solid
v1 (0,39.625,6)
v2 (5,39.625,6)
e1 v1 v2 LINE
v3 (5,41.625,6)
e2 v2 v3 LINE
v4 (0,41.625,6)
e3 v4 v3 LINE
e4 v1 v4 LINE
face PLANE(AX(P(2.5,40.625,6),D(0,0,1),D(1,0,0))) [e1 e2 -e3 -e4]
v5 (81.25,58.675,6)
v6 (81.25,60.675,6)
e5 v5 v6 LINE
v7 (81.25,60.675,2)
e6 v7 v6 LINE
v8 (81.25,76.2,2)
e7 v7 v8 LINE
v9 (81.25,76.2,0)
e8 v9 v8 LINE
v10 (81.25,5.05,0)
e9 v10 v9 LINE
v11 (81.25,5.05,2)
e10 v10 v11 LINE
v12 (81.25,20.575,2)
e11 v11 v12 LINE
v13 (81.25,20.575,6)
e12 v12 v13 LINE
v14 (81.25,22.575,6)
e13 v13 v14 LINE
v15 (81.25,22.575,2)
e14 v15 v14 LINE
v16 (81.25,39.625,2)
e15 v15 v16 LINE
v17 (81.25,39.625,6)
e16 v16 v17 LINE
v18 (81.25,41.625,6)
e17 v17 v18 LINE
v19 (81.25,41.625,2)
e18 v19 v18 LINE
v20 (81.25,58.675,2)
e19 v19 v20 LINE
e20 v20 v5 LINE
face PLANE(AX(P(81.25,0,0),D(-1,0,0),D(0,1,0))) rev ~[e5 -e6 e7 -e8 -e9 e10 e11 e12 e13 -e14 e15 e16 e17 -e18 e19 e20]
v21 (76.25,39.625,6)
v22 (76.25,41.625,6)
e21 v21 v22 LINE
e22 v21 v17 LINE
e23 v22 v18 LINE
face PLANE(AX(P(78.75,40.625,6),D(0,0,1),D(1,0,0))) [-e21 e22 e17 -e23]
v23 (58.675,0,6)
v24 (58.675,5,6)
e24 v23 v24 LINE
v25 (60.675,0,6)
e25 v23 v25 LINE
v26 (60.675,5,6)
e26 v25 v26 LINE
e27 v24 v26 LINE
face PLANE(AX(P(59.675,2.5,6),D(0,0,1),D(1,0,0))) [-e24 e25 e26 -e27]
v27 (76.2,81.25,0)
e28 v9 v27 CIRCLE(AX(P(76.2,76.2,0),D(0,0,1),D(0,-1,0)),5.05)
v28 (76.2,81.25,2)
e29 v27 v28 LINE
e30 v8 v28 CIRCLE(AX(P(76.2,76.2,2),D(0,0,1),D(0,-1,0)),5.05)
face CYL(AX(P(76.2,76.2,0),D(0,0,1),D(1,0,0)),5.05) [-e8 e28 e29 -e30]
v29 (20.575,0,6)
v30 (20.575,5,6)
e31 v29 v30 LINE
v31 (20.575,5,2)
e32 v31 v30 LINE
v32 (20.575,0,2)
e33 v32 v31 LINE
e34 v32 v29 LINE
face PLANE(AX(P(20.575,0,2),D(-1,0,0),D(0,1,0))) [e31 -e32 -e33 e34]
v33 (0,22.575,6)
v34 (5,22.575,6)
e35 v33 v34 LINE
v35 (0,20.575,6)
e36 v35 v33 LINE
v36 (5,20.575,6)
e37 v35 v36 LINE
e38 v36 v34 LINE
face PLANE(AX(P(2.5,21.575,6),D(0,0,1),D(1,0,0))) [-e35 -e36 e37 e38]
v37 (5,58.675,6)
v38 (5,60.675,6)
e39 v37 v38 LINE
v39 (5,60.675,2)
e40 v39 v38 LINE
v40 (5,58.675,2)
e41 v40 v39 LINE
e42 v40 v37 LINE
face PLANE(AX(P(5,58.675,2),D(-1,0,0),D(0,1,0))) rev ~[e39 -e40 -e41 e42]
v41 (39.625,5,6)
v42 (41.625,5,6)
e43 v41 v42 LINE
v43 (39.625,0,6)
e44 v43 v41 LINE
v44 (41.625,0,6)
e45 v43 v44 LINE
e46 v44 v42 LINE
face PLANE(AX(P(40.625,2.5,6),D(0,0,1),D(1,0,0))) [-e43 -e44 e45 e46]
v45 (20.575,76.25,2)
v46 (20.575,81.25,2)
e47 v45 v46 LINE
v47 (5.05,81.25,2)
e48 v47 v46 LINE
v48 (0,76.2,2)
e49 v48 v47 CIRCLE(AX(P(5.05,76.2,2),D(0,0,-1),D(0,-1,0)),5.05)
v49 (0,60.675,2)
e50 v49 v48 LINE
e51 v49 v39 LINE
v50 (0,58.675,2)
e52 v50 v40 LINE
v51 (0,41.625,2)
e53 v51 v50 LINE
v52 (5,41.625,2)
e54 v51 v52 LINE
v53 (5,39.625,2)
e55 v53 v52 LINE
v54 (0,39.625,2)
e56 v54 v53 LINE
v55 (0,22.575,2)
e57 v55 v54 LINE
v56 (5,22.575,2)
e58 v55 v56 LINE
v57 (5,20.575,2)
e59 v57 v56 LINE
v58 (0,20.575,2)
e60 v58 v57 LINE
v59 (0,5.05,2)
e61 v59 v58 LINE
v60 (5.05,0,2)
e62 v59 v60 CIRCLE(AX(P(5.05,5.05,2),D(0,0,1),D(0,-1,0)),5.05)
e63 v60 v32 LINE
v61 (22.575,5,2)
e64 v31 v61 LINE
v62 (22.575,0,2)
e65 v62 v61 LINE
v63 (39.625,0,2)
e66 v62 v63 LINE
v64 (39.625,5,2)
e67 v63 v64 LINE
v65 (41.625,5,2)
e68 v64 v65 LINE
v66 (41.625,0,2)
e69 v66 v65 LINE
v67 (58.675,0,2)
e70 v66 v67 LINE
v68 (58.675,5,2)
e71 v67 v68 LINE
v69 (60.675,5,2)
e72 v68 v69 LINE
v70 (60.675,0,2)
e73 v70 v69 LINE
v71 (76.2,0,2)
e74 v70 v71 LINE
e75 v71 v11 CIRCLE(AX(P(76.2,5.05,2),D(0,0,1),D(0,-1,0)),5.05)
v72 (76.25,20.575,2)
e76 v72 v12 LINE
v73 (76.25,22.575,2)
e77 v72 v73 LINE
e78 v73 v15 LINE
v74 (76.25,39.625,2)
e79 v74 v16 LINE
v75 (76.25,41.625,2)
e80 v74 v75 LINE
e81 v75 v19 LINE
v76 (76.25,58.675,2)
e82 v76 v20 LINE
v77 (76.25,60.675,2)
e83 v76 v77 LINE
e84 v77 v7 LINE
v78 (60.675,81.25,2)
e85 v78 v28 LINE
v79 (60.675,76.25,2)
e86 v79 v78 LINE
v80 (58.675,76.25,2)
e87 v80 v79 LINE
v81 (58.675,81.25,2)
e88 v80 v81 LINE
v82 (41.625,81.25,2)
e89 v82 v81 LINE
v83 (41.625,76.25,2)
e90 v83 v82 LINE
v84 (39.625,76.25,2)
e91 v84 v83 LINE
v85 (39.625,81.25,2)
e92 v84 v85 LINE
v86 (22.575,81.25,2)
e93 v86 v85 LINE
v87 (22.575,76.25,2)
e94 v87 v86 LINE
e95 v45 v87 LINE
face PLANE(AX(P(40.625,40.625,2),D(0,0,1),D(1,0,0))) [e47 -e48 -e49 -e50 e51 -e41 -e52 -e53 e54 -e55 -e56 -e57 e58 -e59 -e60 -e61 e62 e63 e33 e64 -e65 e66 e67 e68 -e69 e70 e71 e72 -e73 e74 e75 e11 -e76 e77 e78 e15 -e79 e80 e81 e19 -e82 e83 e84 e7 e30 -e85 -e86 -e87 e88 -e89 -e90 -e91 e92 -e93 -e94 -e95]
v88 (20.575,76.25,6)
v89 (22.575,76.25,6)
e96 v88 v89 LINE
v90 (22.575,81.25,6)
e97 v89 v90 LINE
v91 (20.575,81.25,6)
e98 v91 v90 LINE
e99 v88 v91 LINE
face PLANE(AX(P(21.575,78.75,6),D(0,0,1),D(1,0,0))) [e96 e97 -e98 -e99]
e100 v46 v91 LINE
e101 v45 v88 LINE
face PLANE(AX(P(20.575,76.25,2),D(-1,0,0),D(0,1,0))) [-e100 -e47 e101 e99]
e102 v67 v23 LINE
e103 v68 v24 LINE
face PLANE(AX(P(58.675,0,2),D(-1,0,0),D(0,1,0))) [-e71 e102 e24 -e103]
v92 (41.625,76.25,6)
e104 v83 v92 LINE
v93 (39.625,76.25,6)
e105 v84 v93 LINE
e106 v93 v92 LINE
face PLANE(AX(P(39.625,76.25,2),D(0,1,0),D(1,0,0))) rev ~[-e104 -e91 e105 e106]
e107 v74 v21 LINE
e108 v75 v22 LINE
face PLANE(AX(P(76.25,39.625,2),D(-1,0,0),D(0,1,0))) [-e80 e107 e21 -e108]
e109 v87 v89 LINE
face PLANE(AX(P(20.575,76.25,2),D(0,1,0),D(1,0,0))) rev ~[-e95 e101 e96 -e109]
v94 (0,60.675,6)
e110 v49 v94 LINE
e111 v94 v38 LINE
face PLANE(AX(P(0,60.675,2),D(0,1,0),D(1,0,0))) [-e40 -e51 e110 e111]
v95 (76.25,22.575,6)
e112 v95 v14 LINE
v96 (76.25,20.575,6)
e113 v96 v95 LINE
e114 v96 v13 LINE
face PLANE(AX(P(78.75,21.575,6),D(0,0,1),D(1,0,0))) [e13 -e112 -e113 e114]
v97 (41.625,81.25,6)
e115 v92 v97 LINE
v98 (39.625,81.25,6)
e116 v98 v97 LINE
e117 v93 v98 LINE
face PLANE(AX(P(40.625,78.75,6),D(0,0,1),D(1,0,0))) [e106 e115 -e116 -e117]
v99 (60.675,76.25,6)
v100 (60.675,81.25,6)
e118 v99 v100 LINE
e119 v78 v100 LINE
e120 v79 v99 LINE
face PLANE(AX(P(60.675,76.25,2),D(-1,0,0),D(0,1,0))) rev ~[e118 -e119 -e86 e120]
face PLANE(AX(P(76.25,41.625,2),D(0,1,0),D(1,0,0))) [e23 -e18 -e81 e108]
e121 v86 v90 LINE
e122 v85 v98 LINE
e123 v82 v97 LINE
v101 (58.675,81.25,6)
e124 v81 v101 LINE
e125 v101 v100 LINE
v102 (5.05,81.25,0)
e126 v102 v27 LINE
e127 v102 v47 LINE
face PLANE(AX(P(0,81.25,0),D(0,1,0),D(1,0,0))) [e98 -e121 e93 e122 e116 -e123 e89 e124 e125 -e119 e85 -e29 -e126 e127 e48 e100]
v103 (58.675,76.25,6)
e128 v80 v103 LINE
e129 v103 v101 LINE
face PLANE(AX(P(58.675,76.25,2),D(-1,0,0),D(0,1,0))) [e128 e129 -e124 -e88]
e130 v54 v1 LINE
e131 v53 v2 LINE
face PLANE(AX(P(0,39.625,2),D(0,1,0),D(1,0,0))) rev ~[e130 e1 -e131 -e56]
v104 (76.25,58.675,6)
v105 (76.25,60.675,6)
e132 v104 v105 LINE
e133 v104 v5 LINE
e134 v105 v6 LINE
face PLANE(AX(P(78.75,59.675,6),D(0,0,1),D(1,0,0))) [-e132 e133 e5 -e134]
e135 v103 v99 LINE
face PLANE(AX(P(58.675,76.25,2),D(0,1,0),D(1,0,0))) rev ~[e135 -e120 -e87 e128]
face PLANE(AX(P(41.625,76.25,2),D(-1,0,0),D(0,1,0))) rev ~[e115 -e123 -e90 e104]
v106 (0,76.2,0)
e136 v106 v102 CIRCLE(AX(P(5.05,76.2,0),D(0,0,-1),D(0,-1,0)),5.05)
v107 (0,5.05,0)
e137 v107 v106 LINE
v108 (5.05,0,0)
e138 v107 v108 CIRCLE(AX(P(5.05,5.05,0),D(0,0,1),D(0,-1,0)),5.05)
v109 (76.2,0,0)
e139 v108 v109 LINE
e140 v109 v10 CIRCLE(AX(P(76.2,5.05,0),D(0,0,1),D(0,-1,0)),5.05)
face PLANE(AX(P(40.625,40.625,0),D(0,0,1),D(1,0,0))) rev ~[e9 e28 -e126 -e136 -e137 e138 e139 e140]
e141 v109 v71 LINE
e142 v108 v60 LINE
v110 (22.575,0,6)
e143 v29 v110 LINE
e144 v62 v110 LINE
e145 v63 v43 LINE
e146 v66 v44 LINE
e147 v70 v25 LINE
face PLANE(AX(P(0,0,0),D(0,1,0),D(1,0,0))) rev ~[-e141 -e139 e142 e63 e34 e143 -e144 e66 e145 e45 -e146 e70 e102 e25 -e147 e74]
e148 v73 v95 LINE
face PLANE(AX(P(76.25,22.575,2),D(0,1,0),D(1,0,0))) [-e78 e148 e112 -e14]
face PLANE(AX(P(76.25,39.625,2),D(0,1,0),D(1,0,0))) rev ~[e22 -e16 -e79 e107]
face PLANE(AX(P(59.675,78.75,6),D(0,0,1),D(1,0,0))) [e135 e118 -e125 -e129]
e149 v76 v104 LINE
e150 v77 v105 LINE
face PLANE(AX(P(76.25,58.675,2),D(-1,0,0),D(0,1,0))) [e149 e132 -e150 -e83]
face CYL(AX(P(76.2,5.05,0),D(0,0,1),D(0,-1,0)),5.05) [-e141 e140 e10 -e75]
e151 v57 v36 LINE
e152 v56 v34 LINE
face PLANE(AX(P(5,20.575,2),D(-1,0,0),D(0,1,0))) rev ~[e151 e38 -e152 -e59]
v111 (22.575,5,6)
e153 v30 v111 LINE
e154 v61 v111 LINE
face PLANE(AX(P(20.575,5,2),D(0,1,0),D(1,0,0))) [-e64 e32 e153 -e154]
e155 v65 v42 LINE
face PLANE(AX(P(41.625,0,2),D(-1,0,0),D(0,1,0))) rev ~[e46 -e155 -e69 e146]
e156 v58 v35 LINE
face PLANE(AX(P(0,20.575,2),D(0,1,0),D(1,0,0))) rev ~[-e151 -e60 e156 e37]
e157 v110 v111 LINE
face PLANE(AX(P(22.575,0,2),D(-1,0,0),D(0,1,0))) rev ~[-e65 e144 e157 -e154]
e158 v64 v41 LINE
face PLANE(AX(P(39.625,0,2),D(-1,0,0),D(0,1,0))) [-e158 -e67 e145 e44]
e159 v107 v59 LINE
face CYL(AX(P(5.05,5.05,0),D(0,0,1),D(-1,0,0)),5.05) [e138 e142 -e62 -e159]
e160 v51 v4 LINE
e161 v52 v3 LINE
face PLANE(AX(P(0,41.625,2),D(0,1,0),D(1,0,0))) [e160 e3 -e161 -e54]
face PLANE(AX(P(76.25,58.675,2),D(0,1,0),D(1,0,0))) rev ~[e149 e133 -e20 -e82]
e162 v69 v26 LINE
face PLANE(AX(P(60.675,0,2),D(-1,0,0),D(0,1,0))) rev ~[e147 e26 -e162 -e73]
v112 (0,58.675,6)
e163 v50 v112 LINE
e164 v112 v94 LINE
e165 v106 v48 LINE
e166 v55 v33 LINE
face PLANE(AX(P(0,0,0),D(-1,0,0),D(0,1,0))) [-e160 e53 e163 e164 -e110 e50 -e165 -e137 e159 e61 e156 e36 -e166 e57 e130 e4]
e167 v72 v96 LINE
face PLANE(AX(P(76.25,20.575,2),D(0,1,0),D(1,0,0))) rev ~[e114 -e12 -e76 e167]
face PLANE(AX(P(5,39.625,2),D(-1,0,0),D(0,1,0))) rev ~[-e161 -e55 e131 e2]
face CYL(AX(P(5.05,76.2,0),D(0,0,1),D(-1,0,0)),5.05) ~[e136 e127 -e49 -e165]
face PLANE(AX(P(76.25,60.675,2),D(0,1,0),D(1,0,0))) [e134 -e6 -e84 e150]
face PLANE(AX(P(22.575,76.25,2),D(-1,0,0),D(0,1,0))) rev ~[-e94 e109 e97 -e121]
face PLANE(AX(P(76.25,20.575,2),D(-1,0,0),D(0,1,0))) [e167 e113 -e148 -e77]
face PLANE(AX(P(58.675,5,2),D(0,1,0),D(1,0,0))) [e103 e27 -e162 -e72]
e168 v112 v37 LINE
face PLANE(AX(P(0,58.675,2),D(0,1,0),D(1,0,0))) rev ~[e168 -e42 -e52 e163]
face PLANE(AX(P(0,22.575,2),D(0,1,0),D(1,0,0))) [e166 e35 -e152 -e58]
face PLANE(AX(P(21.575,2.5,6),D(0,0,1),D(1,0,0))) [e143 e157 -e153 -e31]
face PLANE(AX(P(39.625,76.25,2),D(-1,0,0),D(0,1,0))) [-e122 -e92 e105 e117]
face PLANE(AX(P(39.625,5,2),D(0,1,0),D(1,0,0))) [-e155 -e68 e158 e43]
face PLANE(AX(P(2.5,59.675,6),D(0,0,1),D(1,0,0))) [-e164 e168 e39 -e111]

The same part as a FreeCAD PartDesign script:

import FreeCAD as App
import Part
import Sketcher
from FreeCAD import Vector


def edges_at(feature, points):
    """Names of the edges that pass closest to the given points."""
    edges = feature.Shape.Edges
    near = lambda p: min(range(len(edges)), key=lambda i: edges[i].distToShape(Part.Vertex(*p))[0])
    return sorted({f"Edge{near(p) + 1}" for p in points})

doc = App.newDocument("Part")
body = doc.addObject("PartDesign::Body", "Body")

# Sketch on XY plane
sketch1 = doc.addObject("Sketcher::SketchObject", "Sketch")
body.addObject(sketch1)
sketch1.AttachmentSupport = (doc.XY_Plane, [""])
sketch1.MapMode = "FlatFace"
sketch1.addGeometry([
    Part.LineSegment(Vector(0, 81, 0), Vector(0, 0, 0)),
    Part.LineSegment(Vector(0, 0, 0), Vector(81, 0, 0)),
    Part.LineSegment(Vector(81, 0, 0), Vector(81, 81, 0)),
    Part.LineSegment(Vector(81, 81, 0), Vector(0, 81, 0)),
], False)
sketch1.addConstraint([
    Sketcher.Constraint("Coincident", 0, 2, 1, 1),
    Sketcher.Constraint("Coincident", 1, 2, 2, 1),
    Sketcher.Constraint("Coincident", 2, 2, 3, 1),
    Sketcher.Constraint("Coincident", 3, 2, 0, 1),
    Sketcher.Constraint("Vertical", 0),
    Sketcher.Constraint("Horizontal", 1),
    Sketcher.Constraint("Vertical", 2),
    Sketcher.Constraint("Horizontal", 3),
    Sketcher.Constraint("Coincident", 0, 2, -1, 1),
    Sketcher.Constraint("Equal", 3, 0),
    Sketcher.Constraint("DistanceX", 1, 1, 1, 2, 81.25),
])
pad1 = doc.addObject("PartDesign::Pad", "Pad")
body.addObject(pad1)
pad1.Profile = sketch1
pad1.Length = 2
doc.recompute()

fillet = doc.addObject("PartDesign::Fillet", "Fillet")
body.addObject(fillet)
fillet.Base = (pad1, edges_at(pad1, [
    (81.25, 0, 1),
    (0, 0, 1),
    (0, 81.25, 1),
    (81.25, 81.25, 1),
]))
fillet.Radius = 5.05

# Sketch on XY plane
sketch2 = doc.addObject("Sketcher::SketchObject", "Sketch001")
body.addObject(sketch2)
sketch2.AttachmentSupport = (doc.XY_Plane, [""])
sketch2.MapMode = "FlatFace"
sketch2.AttachmentOffset = App.Placement(Vector(0, 0, 2), App.Rotation())
sketch2.addGeometry([
    Part.LineSegment(Vector(20.6, 81.2, 0), Vector(20.6, 76.2, 0)),  # 0
    Part.LineSegment(Vector(20.6, 76.2, 0), Vector(22.6, 76.2, 0)),  # 1
    Part.LineSegment(Vector(22.6, 76.2, 0), Vector(22.6, 81.2, 0)),  # 2
    Part.LineSegment(Vector(22.6, 81.2, 0), Vector(20.6, 81.2, 0)),  # 3
    Part.LineSegment(Vector(39.6, 81.2, 0), Vector(39.6, 76.2, 0)),  # 4
    Part.LineSegment(Vector(39.6, 76.2, 0), Vector(41.6, 76.2, 0)),  # 5
    Part.LineSegment(Vector(41.6, 76.2, 0), Vector(41.6, 81.2, 0)),  # 6
    Part.LineSegment(Vector(41.6, 81.2, 0), Vector(39.6, 81.2, 0)),  # 7
    Part.LineSegment(Vector(58.7, 81.2, 0), Vector(58.7, 76.2, 0)),  # 8
    Part.LineSegment(Vector(58.7, 76.2, 0), Vector(60.7, 76.2, 0)),  # 9
    Part.LineSegment(Vector(60.7, 76.2, 0), Vector(60.7, 81.2, 0)),  # 10
    Part.LineSegment(Vector(60.7, 81.2, 0), Vector(58.7, 81.2, 0)),  # 11
    Part.LineSegment(Vector(39.6, 5, 0), Vector(39.6, 0, 0)),  # 12
    Part.LineSegment(Vector(39.6, 0, 0), Vector(41.6, 0, 0)),  # 13
    Part.LineSegment(Vector(41.6, 0, 0), Vector(41.6, 5, 0)),  # 14
    Part.LineSegment(Vector(41.6, 5, 0), Vector(39.6, 5, 0)),  # 15
    Part.LineSegment(Vector(58.7, 5, 0), Vector(58.7, 0, 0)),  # 16
    Part.LineSegment(Vector(58.7, 0, 0), Vector(60.7, 0, 0)),  # 17
    Part.LineSegment(Vector(60.7, 0, 0), Vector(60.7, 5, 0)),  # 18
    Part.LineSegment(Vector(60.7, 5, 0), Vector(58.7, 5, 0)),  # 19
    Part.LineSegment(Vector(20.6, 5, 0), Vector(20.6, 0, 0)),  # 20
    Part.LineSegment(Vector(20.6, 0, 0), Vector(22.6, 0, 0)),  # 21
    Part.LineSegment(Vector(22.6, 0, 0), Vector(22.6, 5, 0)),  # 22
    Part.LineSegment(Vector(22.6, 5, 0), Vector(20.6, 5, 0)),  # 23
    Part.LineSegment(Vector(76.2, 41.6, 0), Vector(76.2, 39.6, 0)),  # 24
    Part.LineSegment(Vector(76.2, 39.6, 0), Vector(81.2, 39.6, 0)),  # 25
    Part.LineSegment(Vector(81.2, 39.6, 0), Vector(81.2, 41.6, 0)),  # 26
    Part.LineSegment(Vector(81.2, 41.6, 0), Vector(76.2, 41.6, 0)),  # 27
    Part.LineSegment(Vector(0, 41.6, 0), Vector(0, 39.6, 0)),  # 28
    Part.LineSegment(Vector(0, 39.6, 0), Vector(5, 39.6, 0)),  # 29
    Part.LineSegment(Vector(5, 39.6, 0), Vector(5, 41.6, 0)),  # 30
    Part.LineSegment(Vector(5, 41.6, 0), Vector(0, 41.6, 0)),  # 31
    Part.LineSegment(Vector(76.2, 60.7, 0), Vector(76.2, 58.7, 0)),  # 32
    Part.LineSegment(Vector(76.2, 58.7, 0), Vector(81.2, 58.7, 0)),  # 33
    Part.LineSegment(Vector(81.2, 58.7, 0), Vector(81.2, 60.7, 0)),  # 34
    Part.LineSegment(Vector(81.2, 60.7, 0), Vector(76.2, 60.7, 0)),  # 35
    Part.LineSegment(Vector(76.2, 22.6, 0), Vector(76.2, 20.6, 0)),  # 36
    Part.LineSegment(Vector(76.2, 20.6, 0), Vector(81.2, 20.6, 0)),  # 37
    Part.LineSegment(Vector(81.2, 20.6, 0), Vector(81.2, 22.6, 0)),  # 38
    Part.LineSegment(Vector(81.2, 22.6, 0), Vector(76.2, 22.6, 0)),  # 39
    Part.LineSegment(Vector(0, 60.7, 0), Vector(0, 58.7, 0)),  # 40
    Part.LineSegment(Vector(0, 58.7, 0), Vector(5, 58.7, 0)),  # 41
    Part.LineSegment(Vector(5, 58.7, 0), Vector(5, 60.7, 0)),  # 42
    Part.LineSegment(Vector(5, 60.7, 0), Vector(0, 60.7, 0)),  # 43
    Part.LineSegment(Vector(0, 22.6, 0), Vector(0, 20.6, 0)),  # 44
    Part.LineSegment(Vector(0, 20.6, 0), Vector(5, 20.6, 0)),  # 45
    Part.LineSegment(Vector(5, 20.6, 0), Vector(5, 22.6, 0)),  # 46
    Part.LineSegment(Vector(5, 22.6, 0), Vector(0, 22.6, 0)),  # 47
], False)
sketch2.addConstraint([
    Sketcher.Constraint("Coincident", 0, 2, 1, 1),
    Sketcher.Constraint("Coincident", 1, 2, 2, 1),
    Sketcher.Constraint("Coincident", 2, 2, 3, 1),
    Sketcher.Constraint("Coincident", 3, 2, 0, 1),
    Sketcher.Constraint("Coincident", 4, 2, 5, 1),
    Sketcher.Constraint("Coincident", 5, 2, 6, 1),
    Sketcher.Constraint("Coincident", 6, 2, 7, 1),
    Sketcher.Constraint("Coincident", 7, 2, 4, 1),
    Sketcher.Constraint("Coincident", 8, 2, 9, 1),
    Sketcher.Constraint("Coincident", 9, 2, 10, 1),
    Sketcher.Constraint("Coincident", 10, 2, 11, 1),
    Sketcher.Constraint("Coincident", 11, 2, 8, 1),
    Sketcher.Constraint("Coincident", 12, 2, 13, 1),
    Sketcher.Constraint("Coincident", 13, 2, 14, 1),
    Sketcher.Constraint("Coincident", 14, 2, 15, 1),
    Sketcher.Constraint("Coincident", 15, 2, 12, 1),
    Sketcher.Constraint("Coincident", 16, 2, 17, 1),
    Sketcher.Constraint("Coincident", 17, 2, 18, 1),
    Sketcher.Constraint("Coincident", 18, 2, 19, 1),
    Sketcher.Constraint("Coincident", 19, 2, 16, 1),
    Sketcher.Constraint("Coincident", 20, 2, 21, 1),
    Sketcher.Constraint("Coincident", 21, 2, 22, 1),
    Sketcher.Constraint("Coincident", 22, 2, 23, 1),
    Sketcher.Constraint("Coincident", 23, 2, 20, 1),
    Sketcher.Constraint("Coincident", 24, 2, 25, 1),
    Sketcher.Constraint("Coincident", 25, 2, 26, 1),
    Sketcher.Constraint("Coincident", 26, 2, 27, 1),
    Sketcher.Constraint("Coincident", 27, 2, 24, 1),
    Sketcher.Constraint("Coincident", 28, 2, 29, 1),
    Sketcher.Constraint("Coincident", 29, 2, 30, 1),
    Sketcher.Constraint("Coincident", 30, 2, 31, 1),
    Sketcher.Constraint("Coincident", 31, 2, 28, 1),
    Sketcher.Constraint("Coincident", 32, 2, 33, 1),
    Sketcher.Constraint("Coincident", 33, 2, 34, 1),
    Sketcher.Constraint("Coincident", 34, 2, 35, 1),
    Sketcher.Constraint("Coincident", 35, 2, 32, 1),
    Sketcher.Constraint("Coincident", 36, 2, 37, 1),
    Sketcher.Constraint("Coincident", 37, 2, 38, 1),
    Sketcher.Constraint("Coincident", 38, 2, 39, 1),
    Sketcher.Constraint("Coincident", 39, 2, 36, 1),
    Sketcher.Constraint("Coincident", 40, 2, 41, 1),
    Sketcher.Constraint("Coincident", 41, 2, 42, 1),
    Sketcher.Constraint("Coincident", 42, 2, 43, 1),
    Sketcher.Constraint("Coincident", 43, 2, 40, 1),
    Sketcher.Constraint("Coincident", 44, 2, 45, 1),
    Sketcher.Constraint("Coincident", 45, 2, 46, 1),
    Sketcher.Constraint("Coincident", 46, 2, 47, 1),
    Sketcher.Constraint("Coincident", 47, 2, 44, 1),
    Sketcher.Constraint("Vertical", 0),
    Sketcher.Constraint("Horizontal", 1),
    Sketcher.Constraint("Vertical", 2),
    Sketcher.Constraint("Horizontal", 3),
    Sketcher.Constraint("Vertical", 4),
    Sketcher.Constraint("Horizontal", 5),
    Sketcher.Constraint("Vertical", 6),
    Sketcher.Constraint("Horizontal", 7),
    Sketcher.Constraint("Vertical", 8),
    Sketcher.Constraint("Horizontal", 9),
    Sketcher.Constraint("Vertical", 10),
    Sketcher.Constraint("Horizontal", 11),
    Sketcher.Constraint("Vertical", 12),
    Sketcher.Constraint("Horizontal", 13),
    Sketcher.Constraint("Vertical", 14),
    Sketcher.Constraint("Horizontal", 15),
    Sketcher.Constraint("Vertical", 16),
    Sketcher.Constraint("Horizontal", 17),
    Sketcher.Constraint("Vertical", 18),
    Sketcher.Constraint("Horizontal", 19),
    Sketcher.Constraint("Vertical", 20),
    Sketcher.Constraint("Horizontal", 21),
    Sketcher.Constraint("Vertical", 22),
    Sketcher.Constraint("Horizontal", 23),
    Sketcher.Constraint("Vertical", 24),
    Sketcher.Constraint("Horizontal", 25),
    Sketcher.Constraint("Vertical", 26),
    Sketcher.Constraint("Horizontal", 27),
    Sketcher.Constraint("Vertical", 28),
    Sketcher.Constraint("Horizontal", 29),
    Sketcher.Constraint("Vertical", 30),
    Sketcher.Constraint("Horizontal", 31),
    Sketcher.Constraint("Vertical", 32),
    Sketcher.Constraint("Horizontal", 33),
    Sketcher.Constraint("Vertical", 34),
    Sketcher.Constraint("Horizontal", 35),
    Sketcher.Constraint("Vertical", 36),
    Sketcher.Constraint("Horizontal", 37),
    Sketcher.Constraint("Vertical", 38),
    Sketcher.Constraint("Horizontal", 39),
    Sketcher.Constraint("Vertical", 40),
    Sketcher.Constraint("Horizontal", 41),
    Sketcher.Constraint("Vertical", 42),
    Sketcher.Constraint("Horizontal", 43),
    Sketcher.Constraint("Vertical", 44),
    Sketcher.Constraint("Horizontal", 45),
    Sketcher.Constraint("Vertical", 46),
    Sketcher.Constraint("Horizontal", 47),
    Sketcher.Constraint("PointOnObject", 12, 2, -1),
    Sketcher.Constraint("PointOnObject", 16, 2, -1),
    Sketcher.Constraint("PointOnObject", 20, 2, -1),
    Sketcher.Constraint("PointOnObject", 28, 2, -2),
    Sketcher.Constraint("PointOnObject", 40, 2, -2),
    Sketcher.Constraint("PointOnObject", 44, 2, -2),
    Sketcher.Constraint("Horizontal", 1, 2, 4, 2),
    Sketcher.Constraint("Horizontal", 3, 2, 6, 2),
    Sketcher.Constraint("Horizontal", 5, 2, 8, 2),
    Sketcher.Constraint("Horizontal", 7, 2, 10, 2),
    Sketcher.Constraint("Horizontal", 15, 2, 18, 2),
    Sketcher.Constraint("Horizontal", 19, 2, 22, 2),
    Sketcher.Constraint("Horizontal", 25, 2, 28, 2),
    Sketcher.Constraint("Horizontal", 27, 2, 30, 2),
    Sketcher.Constraint("Horizontal", 33, 2, 40, 2),
    Sketcher.Constraint("Horizontal", 35, 2, 42, 2),
    Sketcher.Constraint("Horizontal", 37, 2, 44, 2),
    Sketcher.Constraint("Horizontal", 39, 2, 46, 2),
    Sketcher.Constraint("Vertical", 7, 2, 12, 2),
    Sketcher.Constraint("Vertical", 6, 2, 13, 2),
    Sketcher.Constraint("Vertical", 11, 2, 16, 2),
    Sketcher.Constraint("Vertical", 10, 2, 17, 2),
    Sketcher.Constraint("Vertical", 3, 2, 20, 2),
    Sketcher.Constraint("Vertical", 2, 2, 21, 2),
    Sketcher.Constraint("Vertical", 27, 2, 32, 2),
    Sketcher.Constraint("Vertical", 26, 2, 33, 2),
    Sketcher.Constraint("Vertical", 35, 2, 36, 2),
    Sketcher.Constraint("Vertical", 34, 2, 37, 2),
    Sketcher.Constraint("Vertical", 30, 2, 41, 2),
    Sketcher.Constraint("Vertical", 42, 2, 45, 2),
    Sketcher.Constraint("Equal", 3, 5),
    Sketcher.Constraint("Equal", 7, 9),
    Sketcher.Constraint("Equal", 27, 29),
    Sketcher.Constraint("Equal", 47, 0),
    Sketcher.Constraint("Equal", 10, 12),
    Sketcher.Constraint("Equal", 23, 24),
    Sketcher.Constraint("Equal", 30, 32),
    Sketcher.Constraint("Equal", 34, 36),
    Sketcher.Constraint("DistanceX", 1, 1, 1, 2, 2.0),
    Sketcher.Constraint("DistanceX", 25, 1, 25, 2, 5.0),
    Sketcher.Constraint("DistanceX", 1, 2, 8, 2, 36.1),
    Sketcher.Constraint("DistanceY", -1, 1, 0, 2, 76.25),
    Sketcher.Constraint("DistanceX", -1, 1, 24, 2, 76.25),
    Sketcher.Constraint("DistanceX", 1, 2, 4, 2, 17.05),
    Sketcher.Constraint("DistanceY", 27, 2, 32, 2, 17.05),
    Sketcher.Constraint("DistanceY", 36, 2, 24, 2, 19.05),
    Sketcher.Constraint("DistanceX", -1, 1, 0, 2, 20.575),
    Sketcher.Constraint("DistanceY", -1, 1, 24, 2, 39.625),
])
pad2 = doc.addObject("PartDesign::Pad", "Pad001")
body.addObject(pad2)
pad2.Profile = sketch2
pad2.Length = 4

doc.recompute()
